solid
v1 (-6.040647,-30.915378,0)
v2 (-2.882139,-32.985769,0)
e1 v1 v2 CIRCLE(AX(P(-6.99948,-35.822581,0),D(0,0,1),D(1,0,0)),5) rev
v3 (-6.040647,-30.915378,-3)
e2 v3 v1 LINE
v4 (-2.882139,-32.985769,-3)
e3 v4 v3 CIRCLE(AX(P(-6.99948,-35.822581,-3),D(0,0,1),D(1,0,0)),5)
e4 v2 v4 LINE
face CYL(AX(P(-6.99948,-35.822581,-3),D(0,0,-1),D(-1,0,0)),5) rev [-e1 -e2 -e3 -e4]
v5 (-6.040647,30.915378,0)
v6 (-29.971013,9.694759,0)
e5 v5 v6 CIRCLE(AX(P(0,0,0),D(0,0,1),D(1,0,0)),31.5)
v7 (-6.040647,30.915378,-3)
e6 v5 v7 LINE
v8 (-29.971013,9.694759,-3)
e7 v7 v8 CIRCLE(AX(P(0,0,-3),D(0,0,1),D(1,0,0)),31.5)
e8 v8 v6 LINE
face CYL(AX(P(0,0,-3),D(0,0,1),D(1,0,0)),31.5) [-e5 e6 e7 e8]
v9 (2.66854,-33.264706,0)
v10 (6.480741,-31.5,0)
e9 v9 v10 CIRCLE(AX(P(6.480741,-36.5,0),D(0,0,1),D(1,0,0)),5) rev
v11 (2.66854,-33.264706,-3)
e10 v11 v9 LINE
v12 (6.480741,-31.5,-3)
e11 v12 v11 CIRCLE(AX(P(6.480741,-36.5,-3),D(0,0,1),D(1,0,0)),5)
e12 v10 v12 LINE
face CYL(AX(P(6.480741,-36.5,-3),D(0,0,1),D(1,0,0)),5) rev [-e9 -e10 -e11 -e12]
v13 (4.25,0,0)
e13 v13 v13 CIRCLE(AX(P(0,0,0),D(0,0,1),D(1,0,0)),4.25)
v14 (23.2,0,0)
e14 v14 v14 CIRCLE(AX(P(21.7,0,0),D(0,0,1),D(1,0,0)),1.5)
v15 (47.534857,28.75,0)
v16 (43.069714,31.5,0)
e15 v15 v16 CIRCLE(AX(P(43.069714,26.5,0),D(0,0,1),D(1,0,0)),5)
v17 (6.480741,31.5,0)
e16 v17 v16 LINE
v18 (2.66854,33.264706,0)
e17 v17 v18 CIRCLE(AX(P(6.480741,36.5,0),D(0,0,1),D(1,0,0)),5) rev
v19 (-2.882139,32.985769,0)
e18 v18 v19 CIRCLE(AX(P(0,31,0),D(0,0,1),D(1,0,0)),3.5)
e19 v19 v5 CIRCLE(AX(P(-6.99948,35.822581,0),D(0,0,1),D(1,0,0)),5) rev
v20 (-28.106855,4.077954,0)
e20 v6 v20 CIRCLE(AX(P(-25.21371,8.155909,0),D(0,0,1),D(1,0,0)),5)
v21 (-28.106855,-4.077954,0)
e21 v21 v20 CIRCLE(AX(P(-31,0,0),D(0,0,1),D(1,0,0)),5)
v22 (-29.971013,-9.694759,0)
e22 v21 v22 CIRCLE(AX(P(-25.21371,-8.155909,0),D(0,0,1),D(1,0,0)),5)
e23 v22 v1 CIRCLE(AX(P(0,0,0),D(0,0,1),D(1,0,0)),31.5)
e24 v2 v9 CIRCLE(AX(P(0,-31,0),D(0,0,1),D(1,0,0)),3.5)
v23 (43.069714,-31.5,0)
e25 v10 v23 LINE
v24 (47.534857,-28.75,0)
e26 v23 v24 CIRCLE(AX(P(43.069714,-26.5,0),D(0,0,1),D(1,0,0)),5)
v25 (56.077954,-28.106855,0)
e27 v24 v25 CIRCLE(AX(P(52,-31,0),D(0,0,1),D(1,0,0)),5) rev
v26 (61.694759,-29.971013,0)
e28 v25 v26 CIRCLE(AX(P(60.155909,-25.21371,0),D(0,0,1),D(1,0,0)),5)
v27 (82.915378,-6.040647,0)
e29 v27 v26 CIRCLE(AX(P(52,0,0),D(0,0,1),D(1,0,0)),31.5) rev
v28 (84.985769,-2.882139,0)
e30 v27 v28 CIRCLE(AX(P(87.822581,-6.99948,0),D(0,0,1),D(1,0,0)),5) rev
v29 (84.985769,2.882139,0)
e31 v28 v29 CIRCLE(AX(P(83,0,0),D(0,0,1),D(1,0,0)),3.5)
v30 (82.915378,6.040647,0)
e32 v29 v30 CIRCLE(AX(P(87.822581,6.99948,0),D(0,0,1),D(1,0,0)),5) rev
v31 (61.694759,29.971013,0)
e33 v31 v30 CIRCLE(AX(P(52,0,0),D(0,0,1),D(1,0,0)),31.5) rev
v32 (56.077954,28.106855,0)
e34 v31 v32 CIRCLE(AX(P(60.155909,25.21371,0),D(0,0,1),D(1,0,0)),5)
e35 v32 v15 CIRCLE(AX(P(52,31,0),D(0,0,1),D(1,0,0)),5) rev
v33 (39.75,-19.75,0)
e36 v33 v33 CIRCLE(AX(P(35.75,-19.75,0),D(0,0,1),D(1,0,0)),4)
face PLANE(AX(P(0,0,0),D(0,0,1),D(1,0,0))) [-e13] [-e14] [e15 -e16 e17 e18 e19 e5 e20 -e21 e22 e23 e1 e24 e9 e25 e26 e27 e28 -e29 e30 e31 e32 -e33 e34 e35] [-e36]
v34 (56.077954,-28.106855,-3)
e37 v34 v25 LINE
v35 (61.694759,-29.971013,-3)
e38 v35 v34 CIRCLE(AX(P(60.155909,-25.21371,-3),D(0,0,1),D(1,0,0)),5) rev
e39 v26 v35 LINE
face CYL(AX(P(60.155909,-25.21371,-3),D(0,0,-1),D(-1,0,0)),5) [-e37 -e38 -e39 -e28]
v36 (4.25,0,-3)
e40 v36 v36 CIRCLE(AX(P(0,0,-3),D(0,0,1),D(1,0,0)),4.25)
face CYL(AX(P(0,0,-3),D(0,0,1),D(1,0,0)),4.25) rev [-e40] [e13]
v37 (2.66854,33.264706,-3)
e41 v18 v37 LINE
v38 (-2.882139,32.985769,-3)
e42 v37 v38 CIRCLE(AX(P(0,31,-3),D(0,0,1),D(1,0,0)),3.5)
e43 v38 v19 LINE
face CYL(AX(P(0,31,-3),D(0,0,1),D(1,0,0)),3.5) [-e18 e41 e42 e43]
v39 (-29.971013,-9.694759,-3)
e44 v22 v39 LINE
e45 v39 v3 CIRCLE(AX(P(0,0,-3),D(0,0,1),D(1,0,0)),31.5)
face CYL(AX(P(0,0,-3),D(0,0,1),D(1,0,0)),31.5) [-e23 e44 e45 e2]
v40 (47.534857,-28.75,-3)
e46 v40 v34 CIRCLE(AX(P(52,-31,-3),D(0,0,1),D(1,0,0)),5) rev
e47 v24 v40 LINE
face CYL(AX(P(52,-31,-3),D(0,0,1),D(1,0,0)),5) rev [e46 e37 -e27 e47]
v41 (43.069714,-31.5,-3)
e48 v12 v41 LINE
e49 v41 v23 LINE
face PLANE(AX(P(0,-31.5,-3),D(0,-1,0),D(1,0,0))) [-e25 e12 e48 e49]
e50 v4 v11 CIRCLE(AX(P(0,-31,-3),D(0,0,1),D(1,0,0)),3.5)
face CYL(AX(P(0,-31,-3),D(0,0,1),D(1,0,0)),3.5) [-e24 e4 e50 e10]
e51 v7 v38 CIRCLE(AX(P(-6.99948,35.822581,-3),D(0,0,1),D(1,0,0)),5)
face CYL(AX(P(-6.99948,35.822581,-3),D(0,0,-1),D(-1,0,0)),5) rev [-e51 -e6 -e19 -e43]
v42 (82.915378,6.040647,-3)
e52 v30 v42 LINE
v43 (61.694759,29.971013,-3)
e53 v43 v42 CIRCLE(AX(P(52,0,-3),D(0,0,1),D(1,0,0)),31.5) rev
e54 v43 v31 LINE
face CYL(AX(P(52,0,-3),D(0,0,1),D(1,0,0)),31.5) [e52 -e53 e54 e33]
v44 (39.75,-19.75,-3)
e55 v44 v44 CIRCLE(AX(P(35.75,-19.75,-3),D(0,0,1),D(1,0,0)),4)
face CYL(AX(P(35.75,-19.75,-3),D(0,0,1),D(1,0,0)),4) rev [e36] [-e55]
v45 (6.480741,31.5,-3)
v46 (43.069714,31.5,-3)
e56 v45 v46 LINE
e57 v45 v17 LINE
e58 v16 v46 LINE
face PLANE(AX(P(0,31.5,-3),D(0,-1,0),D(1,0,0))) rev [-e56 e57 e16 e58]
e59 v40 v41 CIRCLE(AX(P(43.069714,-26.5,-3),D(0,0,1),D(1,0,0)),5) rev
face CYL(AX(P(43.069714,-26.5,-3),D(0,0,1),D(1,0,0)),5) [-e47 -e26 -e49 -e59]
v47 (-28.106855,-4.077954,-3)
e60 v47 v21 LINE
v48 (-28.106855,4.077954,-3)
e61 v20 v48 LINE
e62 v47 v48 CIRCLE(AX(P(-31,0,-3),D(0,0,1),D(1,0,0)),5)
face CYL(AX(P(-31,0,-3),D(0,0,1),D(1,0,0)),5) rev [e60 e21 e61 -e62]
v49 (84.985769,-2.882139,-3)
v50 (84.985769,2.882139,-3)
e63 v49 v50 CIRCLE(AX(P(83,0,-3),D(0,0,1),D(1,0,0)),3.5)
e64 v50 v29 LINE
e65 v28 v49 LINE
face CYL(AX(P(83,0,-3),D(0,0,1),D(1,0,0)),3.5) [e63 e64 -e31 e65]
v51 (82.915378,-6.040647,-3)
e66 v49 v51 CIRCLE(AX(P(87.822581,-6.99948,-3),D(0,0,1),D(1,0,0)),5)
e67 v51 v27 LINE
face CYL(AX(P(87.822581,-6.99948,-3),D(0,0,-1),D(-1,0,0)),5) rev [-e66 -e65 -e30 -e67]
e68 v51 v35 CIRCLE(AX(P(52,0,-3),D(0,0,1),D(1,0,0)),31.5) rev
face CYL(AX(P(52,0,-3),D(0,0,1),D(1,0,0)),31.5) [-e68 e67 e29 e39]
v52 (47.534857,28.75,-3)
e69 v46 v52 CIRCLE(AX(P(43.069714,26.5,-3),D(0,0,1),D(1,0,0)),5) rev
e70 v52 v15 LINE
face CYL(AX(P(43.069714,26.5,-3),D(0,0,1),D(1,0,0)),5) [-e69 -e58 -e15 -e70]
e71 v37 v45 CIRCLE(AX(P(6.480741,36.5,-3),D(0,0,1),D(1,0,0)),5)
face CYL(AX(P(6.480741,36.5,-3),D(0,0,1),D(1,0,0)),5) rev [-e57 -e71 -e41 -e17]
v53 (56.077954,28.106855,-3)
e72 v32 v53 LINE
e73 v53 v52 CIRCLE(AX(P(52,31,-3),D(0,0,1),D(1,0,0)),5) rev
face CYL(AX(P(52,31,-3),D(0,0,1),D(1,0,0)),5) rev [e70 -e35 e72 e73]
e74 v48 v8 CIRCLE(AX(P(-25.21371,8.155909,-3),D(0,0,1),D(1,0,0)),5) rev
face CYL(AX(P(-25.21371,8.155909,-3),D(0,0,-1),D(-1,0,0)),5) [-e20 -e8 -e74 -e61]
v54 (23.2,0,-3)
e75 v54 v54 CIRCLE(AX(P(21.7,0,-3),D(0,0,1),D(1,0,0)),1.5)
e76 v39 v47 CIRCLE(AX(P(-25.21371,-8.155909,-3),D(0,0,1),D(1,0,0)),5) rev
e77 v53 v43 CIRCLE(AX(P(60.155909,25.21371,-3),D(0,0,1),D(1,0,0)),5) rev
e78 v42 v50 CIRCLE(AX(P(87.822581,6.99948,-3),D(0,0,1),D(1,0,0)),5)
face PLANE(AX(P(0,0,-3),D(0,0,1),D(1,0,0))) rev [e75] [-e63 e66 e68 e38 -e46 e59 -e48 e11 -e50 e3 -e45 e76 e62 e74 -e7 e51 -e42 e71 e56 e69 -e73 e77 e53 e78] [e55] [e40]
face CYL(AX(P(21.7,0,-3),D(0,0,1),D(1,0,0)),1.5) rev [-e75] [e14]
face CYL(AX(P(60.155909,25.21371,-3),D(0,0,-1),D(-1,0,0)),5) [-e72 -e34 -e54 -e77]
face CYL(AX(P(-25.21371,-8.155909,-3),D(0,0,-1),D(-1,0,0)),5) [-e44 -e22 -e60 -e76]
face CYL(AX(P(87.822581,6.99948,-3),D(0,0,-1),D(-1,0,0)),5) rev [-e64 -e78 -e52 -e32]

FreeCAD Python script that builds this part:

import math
import FreeCAD as App
import Part
import Sketcher
from FreeCAD import Vector
Q = App.Units.Quantity


def edges_at(feature, points):
    """Names of the edges that pass closest to the given points."""
    edges = feature.Shape.Edges
    near = lambda p: min(range(len(edges)), key=lambda i: edges[i].distToShape(Part.Vertex(*p))[0])
    return sorted({f"Edge{near(p) + 1}" for p in points})

doc = App.newDocument("Part")
body = doc.addObject("PartDesign::Body", "Body")

sketch1 = body.newObject("Sketcher::SketchObject", "Sketch")
sketch1.AttachmentSupport = (doc.getObject("XY_Plane"), [""])
sketch1.MapMode = "FlatFace"
sketch1.addGeometry(Part.LineSegment(Vector(47, 31.5, 0), Vector(3.5, 31.5, 0)), False)
sketch1.addGeometry(Part.ArcOfCircle(Part.Circle(Vector(0, 31, 0), Vector(0, 0, 1), 3.5), math.radians(8), math.radians(175)), False)
sketch1.addGeometry(Part.ArcOfCircle(Part.Circle(Vector(0, 0, 0), Vector(0, 0, 1), 31.5), math.radians(96), math.radians(171)), False)
sketch1.addGeometry(Part.ArcOfCircle(Part.Circle(Vector(-31, 0, 0), Vector(0, 0, 1), 5), math.radians(-91), math.radians(91)), False)
sketch1.addGeometry(Part.ArcOfCircle(Part.Circle(Vector(0, 0, 0), Vector(0, 0, 1), 31.5), math.radians(-171), math.radians(-96)), False)
sketch1.addGeometry(Part.ArcOfCircle(Part.Circle(Vector(0, -31, 0), Vector(0, 0, 1), 3.5), math.radians(-175), math.radians(-8)), False)
sketch1.addGeometry(Part.LineSegment(Vector(3.5, -31.5, 0), Vector(47, -31.5, 0)), False)
sketch1.addGeometry(Part.ArcOfCircle(Part.Circle(Vector(52, -31, 0), Vector(0, 0, 1), 5), math.radians(-1), math.radians(186)), False)
sketch1.addGeometry(Part.ArcOfCircle(Part.Circle(Vector(52, 0, 0), Vector(0, 0, 1), 31.5), math.radians(-81), math.radians(-6)), False)
sketch1.addGeometry(Part.ArcOfCircle(Part.Circle(Vector(83, 0, 0), Vector(0, 0, 1), 3.5), math.radians(-85), math.radians(85)), False)
sketch1.addGeometry(Part.ArcOfCircle(Part.Circle(Vector(52, 0, 0), Vector(0, 0, 1), 31.5), math.radians(6), math.radians(81)), False)
sketch1.addGeometry(Part.ArcOfCircle(Part.Circle(Vector(52, 31, 0), Vector(0, 0, 1), 5), math.radians(174), math.radians(361)), False)
sketch1.addGeometry(Part.Circle(Vector(35.8, -19.8, 0), Vector(0, 0, 1), 4), False)
sketch1.addGeometry(Part.Circle(Vector(0, 0, 0), Vector(0, 0, 1), 4.2), False)
sketch1.addGeometry(Part.Circle(Vector(21.7, 0, 0), Vector(0, 0, 1), 1.5), False)
sketch1.addConstraint(Sketcher.Constraint("Coincident", 0, 2, 1, 1))
sketch1.addConstraint(Sketcher.Constraint("Coincident", 1, 2, 2, 1))
sketch1.addConstraint(Sketcher.Constraint("Coincident", 2, 2, 3, 2))
sketch1.addConstraint(Sketcher.Constraint("Coincident", 3, 1, 4, 1))
sketch1.addConstraint(Sketcher.Constraint("Coincident", 4, 2, 5, 1))
sketch1.addConstraint(Sketcher.Constraint("Coincident", 5, 2, 6, 1))
sketch1.addConstraint(Sketcher.Constraint("Coincident", 6, 2, 7, 2))
sketch1.addConstraint(Sketcher.Constraint("Coincident", 7, 1, 8, 1))
sketch1.addConstraint(Sketcher.Constraint("Coincident", 8, 2, 9, 1))
sketch1.addConstraint(Sketcher.Constraint("Coincident", 9, 2, 10, 1))
sketch1.addConstraint(Sketcher.Constraint("Coincident", 10, 2, 11, 2))
sketch1.addConstraint(Sketcher.Constraint("Coincident", 11, 1, 0, 1))
sketch1.addConstraint(Sketcher.Constraint("Horizontal", 0))
sketch1.addConstraint(Sketcher.Constraint("Horizontal", 6))
sketch1.addConstraint(Sketcher.Constraint("Coincident", 2, 3, -1, 1))
sketch1.addConstraint(Sketcher.Constraint("Coincident", 4, 3, -1, 1))
sketch1.addConstraint(Sketcher.Constraint("Coincident", 13, 3, -1, 1))
sketch1.addConstraint(Sketcher.Constraint("Coincident", 10, 3, 8, 3))
sketch1.addConstraint(Sketcher.Constraint("Equal", 2, 4))
sketch1.addConstraint(Sketcher.Constraint("Equal", 1, 5))
sketch1.addConstraint(Sketcher.Constraint("Equal", 3, 7))
sketch1.addConstraint(Sketcher.Constraint("Equal", 4, 8))
sketch1.addConstraint(Sketcher.Constraint("Equal", 5, 9))
sketch1.addConstraint(Sketcher.Constraint("Equal", 8, 10))
sketch1.addConstraint(Sketcher.Constraint("Equal", 7, 11))
sketch1.addConstraint(Sketcher.Constraint("Symmetric", 1, 3, 5, 3, -1, 1))
sketch1.addConstraint(Sketcher.Constraint("Symmetric", 7, 3, 11, 3, -1))
sketch1.addConstraint(Sketcher.Constraint("Symmetric", 0, 2, 5, 2, -1))
sketch1.addConstraint(Sketcher.Constraint("Symmetric", 8, 2, 9, 2, -1))
sketch1.addConstraint(Sketcher.Constraint("PointOnObject", 3, 3, -1))
sketch1.addConstraint(Sketcher.Constraint("PointOnObject", 14, 3, -1))
sketch1.addConstraint(Sketcher.Constraint("Horizontal", 5, 3, 7, 3))
sketch1.addConstraint(Sketcher.Constraint("Vertical", 7, 3, 8, 3))
sketch1.addConstraint(Sketcher.Constraint("Diameter", 12, Q("8 mm")))
sketch1.addConstraint(Sketcher.Constraint("Diameter", 14, Q("3 mm")))
sketch1.addConstraint(Sketcher.Constraint("Radius", 3, Q("5 mm")))
sketch1.addConstraint(Sketcher.Constraint("Diameter", 13, Q("8.5 mm")))
sketch1.addConstraint(Sketcher.Constraint("Radius", 1, Q("3.5 mm")))
sketch1.addConstraint(Sketcher.Constraint("Radius", 2, Q("31.5 mm")))
sketch1.addConstraint(Sketcher.Constraint("DistanceY", -1, 1, 1, 3, Q("31 mm")))
sketch1.addConstraint(Sketcher.Constraint("DistanceX", 3, 3, -1, 1, Q("31 mm")))
sketch1.addConstraint(Sketcher.Constraint("DistanceX", -1, 1, 7, 3, Q("52 mm")))
sketch1.addConstraint(Sketcher.Constraint("DistanceX", -1, 1, 9, 3, Q("83 mm")))
sketch1.addConstraint(Sketcher.Constraint("DistanceX", -1, 1, 14, 3, Q("21.7 mm")))
sketch1.addConstraint(Sketcher.Constraint("DistanceY", -1, 1, 0, 2, Q("31.5 mm")))
sketch1.addConstraint(Sketcher.Constraint("DistanceX", -1, 1, 12, 3, Q("35.75 mm")))
sketch1.addConstraint(Sketcher.Constraint("DistanceY", 12, 3, -1, 1, Q("19.75 mm")))
pad1 = body.newObject("PartDesign::Pad", "Pad")
pad1.Profile = sketch1
pad1.Length = 3
pad1.Reversed = True
doc.recompute()

fillet = body.newObject("PartDesign::Fillet", "Fillet")
fillet.Base = (pad1, edges_at(pad1, [
    (3.464, 31.5, -1.5),
    (47.025, 31.5, -1.5),
    (56.999, 31.101, -1.5),
    (83.306, 3.487, -1.5),
    (83.306, -3.487, -1.5),
    (56.999, -31.101, -1.5),
    (47.025, -31.5, -1.5),
    (3.464, -31.5, -1.5),
    (-3.487, -31.306, -1.5),
    (-31.101, -4.999, -1.5),
    (-31.101, 4.999, -1.5),
    (-3.487, 31.306, -1.5),
]))
fillet.Radius = 5

doc.recompute()
